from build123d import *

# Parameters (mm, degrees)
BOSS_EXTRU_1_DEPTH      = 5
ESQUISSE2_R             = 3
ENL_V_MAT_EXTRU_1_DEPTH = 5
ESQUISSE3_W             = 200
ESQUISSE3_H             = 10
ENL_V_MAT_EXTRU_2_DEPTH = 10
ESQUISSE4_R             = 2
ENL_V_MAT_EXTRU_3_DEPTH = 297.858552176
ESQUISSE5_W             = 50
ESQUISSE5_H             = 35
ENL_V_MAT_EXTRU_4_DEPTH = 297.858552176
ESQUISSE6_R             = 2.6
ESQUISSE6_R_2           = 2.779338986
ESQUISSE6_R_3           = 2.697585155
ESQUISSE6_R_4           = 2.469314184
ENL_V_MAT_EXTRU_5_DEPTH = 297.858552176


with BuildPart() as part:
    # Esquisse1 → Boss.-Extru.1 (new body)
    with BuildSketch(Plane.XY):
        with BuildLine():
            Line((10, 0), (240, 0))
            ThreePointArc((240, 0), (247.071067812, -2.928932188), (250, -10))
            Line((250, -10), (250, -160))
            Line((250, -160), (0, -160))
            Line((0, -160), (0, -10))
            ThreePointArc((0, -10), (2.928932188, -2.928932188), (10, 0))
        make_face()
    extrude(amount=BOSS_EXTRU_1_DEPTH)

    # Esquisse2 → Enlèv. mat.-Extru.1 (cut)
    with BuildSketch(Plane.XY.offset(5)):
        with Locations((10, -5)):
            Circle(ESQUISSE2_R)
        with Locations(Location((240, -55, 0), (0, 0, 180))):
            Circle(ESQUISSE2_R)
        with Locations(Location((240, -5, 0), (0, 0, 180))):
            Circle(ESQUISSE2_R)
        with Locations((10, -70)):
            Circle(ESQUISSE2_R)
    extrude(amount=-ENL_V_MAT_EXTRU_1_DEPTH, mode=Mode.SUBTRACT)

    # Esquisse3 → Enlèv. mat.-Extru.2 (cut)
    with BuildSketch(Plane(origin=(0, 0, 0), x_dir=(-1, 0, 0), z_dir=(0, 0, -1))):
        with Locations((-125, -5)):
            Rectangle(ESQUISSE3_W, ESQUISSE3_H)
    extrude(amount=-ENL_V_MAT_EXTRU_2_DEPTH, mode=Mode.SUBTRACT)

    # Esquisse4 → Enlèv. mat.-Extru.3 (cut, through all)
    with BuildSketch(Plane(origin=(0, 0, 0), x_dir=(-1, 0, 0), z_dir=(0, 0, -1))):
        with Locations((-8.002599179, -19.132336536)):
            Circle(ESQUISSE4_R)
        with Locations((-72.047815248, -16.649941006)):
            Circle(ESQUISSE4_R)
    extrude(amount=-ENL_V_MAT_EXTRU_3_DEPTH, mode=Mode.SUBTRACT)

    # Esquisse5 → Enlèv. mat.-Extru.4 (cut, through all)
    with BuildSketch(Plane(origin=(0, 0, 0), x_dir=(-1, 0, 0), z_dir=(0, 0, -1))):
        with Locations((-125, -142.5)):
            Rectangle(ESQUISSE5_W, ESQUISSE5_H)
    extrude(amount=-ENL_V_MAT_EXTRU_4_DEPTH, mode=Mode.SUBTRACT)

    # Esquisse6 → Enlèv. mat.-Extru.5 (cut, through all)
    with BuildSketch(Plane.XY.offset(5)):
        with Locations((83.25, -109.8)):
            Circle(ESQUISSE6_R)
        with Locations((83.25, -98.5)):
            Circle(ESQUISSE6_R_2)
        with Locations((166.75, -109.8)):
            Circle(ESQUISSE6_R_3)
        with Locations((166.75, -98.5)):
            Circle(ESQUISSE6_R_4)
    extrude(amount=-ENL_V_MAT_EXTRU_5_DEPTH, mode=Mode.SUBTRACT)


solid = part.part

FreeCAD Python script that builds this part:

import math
import FreeCAD as App
import Part
import Sketcher

V = App.Vector


def add_polygon(sketch, points):
    """Adds a closed chain of lines whose ends are joined by coincident constraints."""
    first, n = sketch.GeometryCount, len(points)
    for a, b in zip(points, points[1:] + points[:1]):
        sketch.addGeometry(Part.LineSegment(App.Vector(*a, 0), App.Vector(*b, 0)), False)
    for i in range(n):
        sketch.addConstraint(Sketcher.Constraint("Coincident", first + i, 2, first + (i + 1) % n, 1))

doc = App.newDocument("Part")
body = doc.addObject("PartDesign::Body", "Body")

# Sketch on XY plane
sketch1 = body.newObject("Sketcher::SketchObject", "Sketch")
sketch1.AttachmentSupport = (doc.getObject("XY_Plane"), [""])
sketch1.MapMode = "FlatFace"
sketch1.addGeometry([
    Part.LineSegment(V(240, 0, 0), V(10, 0, 0)),  # 0
    Part.ArcOfCircle(Part.Circle(V(10, -10, 0), V(0, 0, 1), 10), math.radians(90), math.radians(180)),  # 1
    Part.LineSegment(V(0, -10, 0), V(0, -160, 0)),  # 2
    Part.LineSegment(V(0, -160, 0), V(250, -160, 0)),  # 3
    Part.LineSegment(V(250, -160, 0), V(250, -10, 0)),  # 4
    Part.ArcOfCircle(Part.Circle(V(240, -10, 0), V(0, 0, 1), 10), math.radians(0), math.radians(90)),  # 5
], False)
sketch1.addConstraint([
    Sketcher.Constraint("Tangent", 0, 2, 1, 1),
    Sketcher.Constraint("Tangent", 1, 2, 2, 1),
    Sketcher.Constraint("Coincident", 2, 2, 3, 1),
    Sketcher.Constraint("Coincident", 3, 2, 4, 1),
    Sketcher.Constraint("Tangent", 4, 2, 5, 1),
    Sketcher.Constraint("Tangent", 5, 2, 0, 1),
    Sketcher.Constraint("Horizontal", 0),
    Sketcher.Constraint("Vertical", 2),
    Sketcher.Constraint("Horizontal", 3),
    Sketcher.Constraint("Vertical", 4),
    Sketcher.Constraint("Equal", 1, 5),
    Sketcher.Constraint("PointOnObject", 0, 2, -1),
    Sketcher.Constraint("PointOnObject", 1, 2, -2),
    Sketcher.Constraint("Radius", 1, 10.0),
    Sketcher.Constraint("DistanceX", 0, 2, 0, 1, 230.0),
    Sketcher.Constraint("DistanceY", 2, 2, 2, 1, 150.0),
])
pad1 = body.newObject("PartDesign::Pad", "Pad")
pad1.Profile = sketch1
pad1.Length = 5

# Sketch on XY plane
sketch2 = body.newObject("Sketcher::SketchObject", "Sketch001")
sketch2.AttachmentSupport = (doc.getObject("XY_Plane"), [""])
sketch2.MapMode = "FlatFace"
sketch2.AttachmentOffset = App.Placement(V(0, 0, 5), App.Rotation())
sketch2.addGeometry([
    Part.Circle(V(10, -5, 0), V(0, 0, 1), 3),
    Part.Circle(V(240, -55, 0), V(0, 0, 1), 3),
    Part.Circle(V(240, -5, 0), V(0, 0, 1), 3),
    Part.Circle(V(10, -70, 0), V(0, 0, 1), 3),
], False)
sketch2.addConstraint([
    Sketcher.Constraint("Equal", 0, 1),
    Sketcher.Constraint("Equal", 1, 2),
    Sketcher.Constraint("Equal", 2, 3),
    Sketcher.Constraint("Horizontal", 0, 3, 2, 3),
    Sketcher.Constraint("Vertical", 1, 3, 2, 3),
    Sketcher.Constraint("Vertical", 0, 3, 3, 3),
    Sketcher.Constraint("Diameter", 0, 6.0),
    Sketcher.Constraint("DistanceX", -1, 1, 0, 3, 10.0),
    Sketcher.Constraint("DistanceY", 0, 3, -1, 1, 5.0),
    Sketcher.Constraint("DistanceX", -1, 1, 1, 3, 240.0),
    Sketcher.Constraint("DistanceY", 1, 3, -1, 1, 55.0),
    Sketcher.Constraint("DistanceY", 3, 3, -1, 1, 70.0),
])
pocket1 = body.newObject("PartDesign::Pocket", "Pocket")
pocket1.Profile = sketch2
pocket1.Length = 5

# Sketch on XY plane
sketch3 = body.newObject("Sketcher::SketchObject", "Sketch002")
sketch3.AttachmentSupport = (doc.getObject("XY_Plane"), [""])
sketch3.MapMode = "FlatFace"
add_polygon(sketch3, [(225, 0), (225, -10), (25, -10), (25, 0)])  # lines 0-3
sketch3.addConstraint([
    Sketcher.Constraint("Vertical", 0),
    Sketcher.Constraint("Horizontal", 1),
    Sketcher.Constraint("Vertical", 2),
    Sketcher.Constraint("Horizontal", 3),
    Sketcher.Constraint("PointOnObject", 2, 2, -1),
    Sketcher.Constraint("DistanceX", 1, 2, 1, 1, 200.0),
    Sketcher.Constraint("DistanceY", 0, 2, 0, 1, 10.0),
    Sketcher.Constraint("DistanceX", -1, 1, 0, 2, 225.0),
])
pocket2 = body.newObject("PartDesign::Pocket", "Pocket001")
pocket2.Profile = sketch3
pocket2.Length = 10
pocket2.Reversed = True

# Sketch on XY plane
sketch4 = body.newObject("Sketcher::SketchObject", "Sketch003")
sketch4.AttachmentSupport = (doc.getObject("XY_Plane"), [""])
sketch4.MapMode = "FlatFace"
sketch4.addGeometry([
    Part.Circle(V(8, -19.1, 0), V(0, 0, 1), 2),
    Part.Circle(V(72, -16.6, 0), V(0, 0, 1), 2),
], False)
sketch4.addConstraint([
    Sketcher.Constraint("Equal", 0, 1),
    Sketcher.Constraint("Diameter", 0, 4.0),
    Sketcher.Constraint("DistanceX", -1, 1, 0, 3, 8.002599),
    Sketcher.Constraint("DistanceY", 1, 3, -1, 1, 16.649941),
    Sketcher.Constraint("DistanceY", 0, 3, -1, 1, 19.132337),
    Sketcher.Constraint("DistanceX", -1, 1, 1, 3, 72.047815),
])
pocket3 = body.newObject("PartDesign::Pocket", "Pocket002")
pocket3.Profile = sketch4
pocket3.Type = "ThroughAll"
pocket3.Reversed = True

# Sketch on XY plane
sketch5 = body.newObject("Sketcher::SketchObject", "Sketch004")
sketch5.AttachmentSupport = (doc.getObject("XY_Plane"), [""])
sketch5.MapMode = "FlatFace"
add_polygon(sketch5, [(150, -125), (150, -160), (100, -160), (100, -125)])  # lines 0-3
sketch5.addConstraint([
    Sketcher.Constraint("Vertical", 0),
    Sketcher.Constraint("Horizontal", 1),
    Sketcher.Constraint("Vertical", 2),
    Sketcher.Constraint("Horizontal", 3),
    Sketcher.Constraint("DistanceX", 1, 2, 1, 1, 50.0),
    Sketcher.Constraint("DistanceY", 0, 2, 0, 1, 35.0),
    Sketcher.Constraint("DistanceX", -1, 1, 0, 2, 150.0),
    Sketcher.Constraint("DistanceY", 0, 2, -1, 1, 160.0),
])
pocket4 = body.newObject("PartDesign::Pocket", "Pocket003")
pocket4.Profile = sketch5
pocket4.Type = "ThroughAll"
pocket4.Reversed = True

# Sketch on XY plane
sketch6 = body.newObject("Sketcher::SketchObject", "Sketch005")
sketch6.AttachmentSupport = (doc.getObject("XY_Plane"), [""])
sketch6.MapMode = "FlatFace"
sketch6.AttachmentOffset = App.Placement(V(0, 0, 5), App.Rotation())
sketch6.addGeometry([
    Part.Circle(V(83.2, -109.8, 0), V(0, 0, 1), 2.6),
    Part.Circle(V(83.2, -98.5, 0), V(0, 0, 1), 2.8),
    Part.Circle(V(166.8, -109.8, 0), V(0, 0, 1), 2.7),
    Part.Circle(V(166.8, -98.5, 0), V(0, 0, 1), 2.5),
], False)
sketch6.addConstraint([
    Sketcher.Constraint("Horizontal", 0, 3, 2, 3),
    Sketcher.Constraint("Horizontal", 1, 3, 3, 3),
    Sketcher.Constraint("Vertical", 0, 3, 1, 3),
    Sketcher.Constraint("Vertical", 2, 3, 3, 3),
    Sketcher.Constraint("Diameter", 0, 5.2),
    Sketcher.Constraint("DistanceY", 0, 3, -1, 1, 109.8),
    Sketcher.Constraint("DistanceY", 1, 3, -1, 1, 98.5),
    Sketcher.Constraint("DistanceX", 0, 3, 2, 3, 83.5),
    Sketcher.Constraint("Diameter", 2, 5.39517),
    Sketcher.Constraint("Diameter", 3, 4.938628),
    Sketcher.Constraint("DistanceX", -1, 1, 0, 3, 83.25),
    Sketcher.Constraint("Diameter", 1, 5.558678),
])
pocket5 = body.newObject("PartDesign::Pocket", "Pocket004")
pocket5.Profile = sketch6
pocket5.Type = "ThroughAll"

doc.recompute()
